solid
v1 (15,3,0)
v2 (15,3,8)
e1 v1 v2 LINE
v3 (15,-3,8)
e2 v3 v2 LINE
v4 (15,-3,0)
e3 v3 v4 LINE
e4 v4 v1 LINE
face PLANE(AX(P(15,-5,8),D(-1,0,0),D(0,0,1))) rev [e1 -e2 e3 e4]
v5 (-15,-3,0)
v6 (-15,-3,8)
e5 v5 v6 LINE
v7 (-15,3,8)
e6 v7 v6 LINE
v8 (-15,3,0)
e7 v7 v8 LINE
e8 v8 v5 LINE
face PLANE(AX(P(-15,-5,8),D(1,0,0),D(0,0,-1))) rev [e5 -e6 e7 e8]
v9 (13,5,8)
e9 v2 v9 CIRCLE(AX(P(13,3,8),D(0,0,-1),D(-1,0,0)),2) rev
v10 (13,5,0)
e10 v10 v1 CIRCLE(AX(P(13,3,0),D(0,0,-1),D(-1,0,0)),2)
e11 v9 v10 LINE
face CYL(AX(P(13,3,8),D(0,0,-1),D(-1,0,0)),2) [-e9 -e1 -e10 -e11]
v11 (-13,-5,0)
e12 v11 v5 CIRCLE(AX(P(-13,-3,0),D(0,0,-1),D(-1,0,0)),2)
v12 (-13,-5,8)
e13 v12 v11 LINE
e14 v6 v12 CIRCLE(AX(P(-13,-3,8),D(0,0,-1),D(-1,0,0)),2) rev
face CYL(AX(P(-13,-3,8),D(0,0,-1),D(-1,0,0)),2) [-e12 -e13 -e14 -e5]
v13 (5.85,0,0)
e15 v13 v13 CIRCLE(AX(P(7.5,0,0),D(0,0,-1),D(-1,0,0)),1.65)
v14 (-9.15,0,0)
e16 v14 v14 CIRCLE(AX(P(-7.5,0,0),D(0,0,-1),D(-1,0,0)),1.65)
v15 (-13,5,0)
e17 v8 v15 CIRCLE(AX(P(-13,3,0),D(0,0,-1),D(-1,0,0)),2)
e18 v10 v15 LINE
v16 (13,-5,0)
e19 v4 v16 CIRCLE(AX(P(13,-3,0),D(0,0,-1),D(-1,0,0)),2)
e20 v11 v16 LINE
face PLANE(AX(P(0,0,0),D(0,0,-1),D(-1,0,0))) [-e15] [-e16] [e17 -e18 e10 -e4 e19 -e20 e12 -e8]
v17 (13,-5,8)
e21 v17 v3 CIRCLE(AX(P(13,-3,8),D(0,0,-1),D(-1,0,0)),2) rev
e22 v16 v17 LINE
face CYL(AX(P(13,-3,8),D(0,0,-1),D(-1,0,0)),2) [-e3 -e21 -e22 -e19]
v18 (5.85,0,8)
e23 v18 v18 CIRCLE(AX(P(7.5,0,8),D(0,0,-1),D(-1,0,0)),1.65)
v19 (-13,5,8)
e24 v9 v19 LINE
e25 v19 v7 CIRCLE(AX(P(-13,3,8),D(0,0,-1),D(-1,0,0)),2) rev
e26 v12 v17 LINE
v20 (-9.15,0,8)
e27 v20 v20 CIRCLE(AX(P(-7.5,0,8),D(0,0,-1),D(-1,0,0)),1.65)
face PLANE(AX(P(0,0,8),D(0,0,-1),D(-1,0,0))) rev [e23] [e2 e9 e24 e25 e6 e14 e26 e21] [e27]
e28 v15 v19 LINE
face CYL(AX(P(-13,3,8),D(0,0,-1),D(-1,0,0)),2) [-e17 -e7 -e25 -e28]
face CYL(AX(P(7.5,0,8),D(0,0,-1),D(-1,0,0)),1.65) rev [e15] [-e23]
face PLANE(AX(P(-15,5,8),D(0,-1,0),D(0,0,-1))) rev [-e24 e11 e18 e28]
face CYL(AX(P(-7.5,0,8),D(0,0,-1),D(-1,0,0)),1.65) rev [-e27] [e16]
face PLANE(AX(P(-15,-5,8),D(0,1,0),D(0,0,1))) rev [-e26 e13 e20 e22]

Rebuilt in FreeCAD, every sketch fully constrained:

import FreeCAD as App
import Part
import Sketcher


def edges_at(feature, points):
    """Names of the edges that pass closest to the given points."""
    edges = feature.Shape.Edges
    near = lambda p: min(range(len(edges)), key=lambda i: edges[i].distToShape(Part.Vertex(*p))[0])
    return sorted({f"Edge{near(p) + 1}" for p in points})

doc = App.newDocument("Part")
body = doc.addObject("PartDesign::Body", "Body")

sketch1 = body.newObject("Sketcher::SketchObject", "Sketch")
sketch1.AttachmentSupport = (doc.getObject("XY_Plane"), [""])
sketch1.MapMode = "FlatFace"
sketch1.addGeometry([
    Part.LineSegment(App.Vector(-15, 5, 0), App.Vector(-15, -5, 0)),
    Part.LineSegment(App.Vector(-15, -5, 0), App.Vector(15, -5, 0)),
    Part.LineSegment(App.Vector(15, -5, 0), App.Vector(15, 5, 0)),
    Part.LineSegment(App.Vector(15, 5, 0), App.Vector(-15, 5, 0)),
], False)
sketch1.addConstraint([
    Sketcher.Constraint("Coincident", 0, 2, 1, 1),
    Sketcher.Constraint("Coincident", 1, 2, 2, 1),
    Sketcher.Constraint("Coincident", 2, 2, 3, 1),
    Sketcher.Constraint("Coincident", 3, 2, 0, 1),
    Sketcher.Constraint("Vertical", 0),
    Sketcher.Constraint("Horizontal", 1),
    Sketcher.Constraint("Vertical", 2),
    Sketcher.Constraint("Horizontal", 3),
    Sketcher.Constraint("Symmetric", 0, 2, 2, 2, -1, 1),
    Sketcher.Constraint("DistanceX", 1, 1, 1, 2, 30.0),
    Sketcher.Constraint("DistanceY", 0, 2, 0, 1, 10.0),
])
pad1 = body.newObject("PartDesign::Pad", "Pad")
pad1.Profile = sketch1
pad1.Length = 8
doc.recompute()

fillet = body.newObject("PartDesign::Fillet", "Fillet")
fillet.Base = (pad1, edges_at(pad1, [
    (15, -5, 4),
    (-15, -5, 4),
    (-15, 5, 4),
    (15, 5, 4),
]))
fillet.Radius = 2

sketch2 = body.newObject("Sketcher::SketchObject", "Sketch001")
sketch2.AttachmentSupport = (doc.getObject("XY_Plane"), [""])
sketch2.MapMode = "FlatFace"
sketch2.addGeometry([
    Part.Circle(App.Vector(7.5, 0, 0), App.Vector(0, 0, 1), 1.6),
    Part.Circle(App.Vector(-7.5, 0, 0), App.Vector(0, 0, 1), 1.6),
], False)
sketch2.addConstraint([
    Sketcher.Constraint("Equal", 0, 1),
    Sketcher.Constraint("Symmetric", 0, 3, 1, 3, -1, 1),
    Sketcher.Constraint("PointOnObject", 0, 3, -1),
    Sketcher.Constraint("Diameter", 0, 3.3),
    Sketcher.Constraint("DistanceX", 1, 3, 0, 3, 15.0),
])
pocket1 = body.newObject("PartDesign::Pocket", "Pocket")
pocket1.Profile = sketch2
pocket1.Type = "ThroughAll"
pocket1.Reversed = True

doc.recompute()
